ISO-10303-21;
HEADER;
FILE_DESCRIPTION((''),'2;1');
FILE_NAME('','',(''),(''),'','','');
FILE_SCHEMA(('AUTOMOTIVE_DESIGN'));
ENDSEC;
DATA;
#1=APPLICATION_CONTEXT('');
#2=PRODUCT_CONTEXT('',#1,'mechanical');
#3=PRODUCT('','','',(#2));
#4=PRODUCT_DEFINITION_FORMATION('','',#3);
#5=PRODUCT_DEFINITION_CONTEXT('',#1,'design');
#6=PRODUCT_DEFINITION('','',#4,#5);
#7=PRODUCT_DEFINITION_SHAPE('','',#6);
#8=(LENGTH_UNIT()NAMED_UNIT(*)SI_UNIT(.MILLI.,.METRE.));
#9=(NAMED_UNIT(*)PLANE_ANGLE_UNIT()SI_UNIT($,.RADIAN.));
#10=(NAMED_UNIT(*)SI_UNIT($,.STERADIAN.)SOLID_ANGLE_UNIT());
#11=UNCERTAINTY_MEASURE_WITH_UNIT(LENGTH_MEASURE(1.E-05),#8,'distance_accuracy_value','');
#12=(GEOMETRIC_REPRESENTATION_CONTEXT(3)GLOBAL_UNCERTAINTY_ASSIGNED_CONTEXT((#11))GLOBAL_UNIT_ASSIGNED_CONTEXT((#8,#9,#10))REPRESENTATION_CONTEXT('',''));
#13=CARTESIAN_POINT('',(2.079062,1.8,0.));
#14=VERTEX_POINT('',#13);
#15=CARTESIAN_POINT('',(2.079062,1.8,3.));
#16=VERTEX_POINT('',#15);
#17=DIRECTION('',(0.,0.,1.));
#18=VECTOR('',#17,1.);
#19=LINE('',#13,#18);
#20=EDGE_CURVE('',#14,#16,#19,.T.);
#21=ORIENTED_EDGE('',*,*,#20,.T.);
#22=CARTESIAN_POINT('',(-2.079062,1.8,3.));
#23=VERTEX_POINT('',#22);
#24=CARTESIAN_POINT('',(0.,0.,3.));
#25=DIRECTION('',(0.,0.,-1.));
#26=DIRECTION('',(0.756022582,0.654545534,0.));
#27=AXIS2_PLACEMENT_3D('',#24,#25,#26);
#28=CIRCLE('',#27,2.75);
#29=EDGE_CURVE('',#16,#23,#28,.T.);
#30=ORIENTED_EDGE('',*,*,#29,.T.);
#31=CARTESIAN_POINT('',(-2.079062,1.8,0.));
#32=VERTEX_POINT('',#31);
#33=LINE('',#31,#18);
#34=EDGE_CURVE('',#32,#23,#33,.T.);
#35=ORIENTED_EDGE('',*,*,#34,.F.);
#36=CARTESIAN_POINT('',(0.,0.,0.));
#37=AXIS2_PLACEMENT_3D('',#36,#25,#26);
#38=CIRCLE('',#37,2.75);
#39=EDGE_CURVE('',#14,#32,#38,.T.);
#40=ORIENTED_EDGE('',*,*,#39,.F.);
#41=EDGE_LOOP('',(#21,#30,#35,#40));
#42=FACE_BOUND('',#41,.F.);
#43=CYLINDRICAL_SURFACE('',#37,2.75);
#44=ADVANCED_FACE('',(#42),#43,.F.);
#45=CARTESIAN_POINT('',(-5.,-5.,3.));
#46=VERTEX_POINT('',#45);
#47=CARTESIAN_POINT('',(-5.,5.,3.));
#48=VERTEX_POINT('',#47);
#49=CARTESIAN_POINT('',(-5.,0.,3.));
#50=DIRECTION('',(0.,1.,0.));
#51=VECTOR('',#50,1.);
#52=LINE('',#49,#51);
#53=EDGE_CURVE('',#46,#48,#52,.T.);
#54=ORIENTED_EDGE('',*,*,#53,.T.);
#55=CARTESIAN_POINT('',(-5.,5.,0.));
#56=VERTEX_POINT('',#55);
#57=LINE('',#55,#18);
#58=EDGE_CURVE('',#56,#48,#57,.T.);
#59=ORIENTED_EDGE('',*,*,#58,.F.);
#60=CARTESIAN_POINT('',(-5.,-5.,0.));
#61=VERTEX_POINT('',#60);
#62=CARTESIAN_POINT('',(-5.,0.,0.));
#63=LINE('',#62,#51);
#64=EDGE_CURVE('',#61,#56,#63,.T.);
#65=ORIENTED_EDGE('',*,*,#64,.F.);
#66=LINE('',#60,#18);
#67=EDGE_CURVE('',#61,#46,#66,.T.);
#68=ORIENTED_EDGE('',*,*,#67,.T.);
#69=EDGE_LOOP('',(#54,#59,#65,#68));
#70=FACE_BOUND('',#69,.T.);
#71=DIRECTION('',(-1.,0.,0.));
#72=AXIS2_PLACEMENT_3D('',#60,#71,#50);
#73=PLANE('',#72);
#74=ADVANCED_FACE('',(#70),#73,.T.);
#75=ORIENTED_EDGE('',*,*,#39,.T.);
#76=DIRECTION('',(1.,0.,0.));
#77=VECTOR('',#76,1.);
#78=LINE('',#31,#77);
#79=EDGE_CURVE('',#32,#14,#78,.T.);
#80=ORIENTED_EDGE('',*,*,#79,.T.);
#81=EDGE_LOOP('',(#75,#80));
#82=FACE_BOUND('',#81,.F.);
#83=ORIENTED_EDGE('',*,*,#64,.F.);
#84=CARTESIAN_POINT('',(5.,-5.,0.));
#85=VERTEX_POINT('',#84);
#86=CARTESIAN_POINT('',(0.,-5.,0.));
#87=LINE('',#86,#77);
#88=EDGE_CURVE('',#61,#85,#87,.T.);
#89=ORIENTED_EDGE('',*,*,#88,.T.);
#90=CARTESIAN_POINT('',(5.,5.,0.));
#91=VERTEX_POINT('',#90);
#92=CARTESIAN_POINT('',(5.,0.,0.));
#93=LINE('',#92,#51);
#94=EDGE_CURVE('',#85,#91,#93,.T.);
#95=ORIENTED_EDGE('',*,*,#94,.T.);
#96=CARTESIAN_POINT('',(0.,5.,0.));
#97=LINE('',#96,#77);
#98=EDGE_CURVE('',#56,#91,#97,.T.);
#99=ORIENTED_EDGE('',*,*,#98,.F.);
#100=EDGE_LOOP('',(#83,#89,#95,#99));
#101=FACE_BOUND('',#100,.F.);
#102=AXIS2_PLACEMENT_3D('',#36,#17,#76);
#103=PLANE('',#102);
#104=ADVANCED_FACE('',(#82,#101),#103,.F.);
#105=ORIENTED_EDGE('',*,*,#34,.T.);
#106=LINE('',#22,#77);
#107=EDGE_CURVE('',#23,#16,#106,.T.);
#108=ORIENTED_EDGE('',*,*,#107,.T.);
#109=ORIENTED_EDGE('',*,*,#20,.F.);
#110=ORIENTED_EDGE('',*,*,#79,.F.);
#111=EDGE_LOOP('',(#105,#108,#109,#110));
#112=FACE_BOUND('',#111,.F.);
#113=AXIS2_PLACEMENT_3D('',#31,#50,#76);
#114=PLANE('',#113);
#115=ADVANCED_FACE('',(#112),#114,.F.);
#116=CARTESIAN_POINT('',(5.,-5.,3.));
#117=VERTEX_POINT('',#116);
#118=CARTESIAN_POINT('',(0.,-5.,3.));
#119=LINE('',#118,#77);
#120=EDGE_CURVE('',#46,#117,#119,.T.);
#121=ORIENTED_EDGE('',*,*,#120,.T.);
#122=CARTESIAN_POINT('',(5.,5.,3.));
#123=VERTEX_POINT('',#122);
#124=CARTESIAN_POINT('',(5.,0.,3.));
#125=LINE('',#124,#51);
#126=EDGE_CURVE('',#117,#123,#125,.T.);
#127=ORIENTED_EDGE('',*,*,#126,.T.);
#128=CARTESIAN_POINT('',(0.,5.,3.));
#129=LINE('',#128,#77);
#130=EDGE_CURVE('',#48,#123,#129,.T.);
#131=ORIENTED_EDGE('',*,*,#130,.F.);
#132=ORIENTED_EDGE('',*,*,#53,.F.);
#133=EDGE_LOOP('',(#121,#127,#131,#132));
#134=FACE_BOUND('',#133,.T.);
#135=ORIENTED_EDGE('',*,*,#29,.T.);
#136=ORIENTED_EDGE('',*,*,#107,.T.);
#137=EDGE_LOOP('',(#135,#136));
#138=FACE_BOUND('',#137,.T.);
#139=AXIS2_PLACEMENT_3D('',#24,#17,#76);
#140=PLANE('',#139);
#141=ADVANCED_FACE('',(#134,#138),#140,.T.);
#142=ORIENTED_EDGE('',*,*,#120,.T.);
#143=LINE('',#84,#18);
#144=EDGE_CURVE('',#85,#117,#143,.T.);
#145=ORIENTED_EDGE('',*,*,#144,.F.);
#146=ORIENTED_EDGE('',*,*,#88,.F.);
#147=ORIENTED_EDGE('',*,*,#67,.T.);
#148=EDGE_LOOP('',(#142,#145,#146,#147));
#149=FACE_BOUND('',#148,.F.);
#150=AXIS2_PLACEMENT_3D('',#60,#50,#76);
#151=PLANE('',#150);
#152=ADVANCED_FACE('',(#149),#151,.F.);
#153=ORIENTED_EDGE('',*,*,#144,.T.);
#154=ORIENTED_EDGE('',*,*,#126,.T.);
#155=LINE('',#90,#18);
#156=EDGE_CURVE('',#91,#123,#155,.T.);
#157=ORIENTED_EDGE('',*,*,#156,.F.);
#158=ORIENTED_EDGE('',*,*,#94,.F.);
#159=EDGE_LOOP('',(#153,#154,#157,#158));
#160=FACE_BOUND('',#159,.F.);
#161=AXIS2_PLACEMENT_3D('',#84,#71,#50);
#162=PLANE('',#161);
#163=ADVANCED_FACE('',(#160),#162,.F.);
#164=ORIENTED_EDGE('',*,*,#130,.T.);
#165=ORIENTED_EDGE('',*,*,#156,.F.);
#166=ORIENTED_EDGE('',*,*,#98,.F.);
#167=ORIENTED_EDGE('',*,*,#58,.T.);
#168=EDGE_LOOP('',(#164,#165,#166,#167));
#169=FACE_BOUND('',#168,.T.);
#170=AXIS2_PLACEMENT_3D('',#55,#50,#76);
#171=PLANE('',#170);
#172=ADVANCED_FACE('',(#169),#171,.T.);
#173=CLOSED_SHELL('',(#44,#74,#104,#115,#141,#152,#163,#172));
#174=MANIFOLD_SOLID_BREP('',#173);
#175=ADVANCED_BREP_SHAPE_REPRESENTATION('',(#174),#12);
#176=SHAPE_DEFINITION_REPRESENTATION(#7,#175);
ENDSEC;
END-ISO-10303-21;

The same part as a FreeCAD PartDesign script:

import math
import FreeCAD as App
import Part
import Sketcher


def add_polygon(sketch, points):
    """Adds a closed chain of lines whose ends are joined by coincident constraints."""
    first, n = sketch.GeometryCount, len(points)
    for a, b in zip(points, points[1:] + points[:1]):
        sketch.addGeometry(Part.LineSegment(App.Vector(*a, 0), App.Vector(*b, 0)), False)
    for i in range(n):
        sketch.addConstraint(Sketcher.Constraint("Coincident", first + i, 2, first + (i + 1) % n, 1))

doc = App.newDocument("Part")
body = doc.addObject("PartDesign::Body", "Body")

sketch1 = body.newObject("Sketcher::SketchObject", "Sketch")
sketch1.AttachmentSupport = (doc.getObject("XY_Plane"), [""])
sketch1.MapMode = "FlatFace"
add_polygon(sketch1, [(-5, 5), (-5, -5), (5, -5), (5, 5)])
sketch1.addGeometry(Part.LineSegment(App.Vector(-2.1, 1.8, 0), App.Vector(2.1, 1.8, 0)), False)
sketch1.addGeometry(Part.ArcOfCircle(Part.Circle(App.Vector(0, 0, 0), App.Vector(0, 0, 1), 2.7), math.radians(139), math.radians(401)), False)
sketch1.addConstraint([
    Sketcher.Constraint("Coincident", 4, 1, 5, 1),
    Sketcher.Constraint("Coincident", 5, 2, 4, 2),
    Sketcher.Constraint("Vertical", 0),
    Sketcher.Constraint("Horizontal", 1),
    Sketcher.Constraint("Vertical", 2),
    Sketcher.Constraint("Horizontal", 3),
    Sketcher.Constraint("Horizontal", 4),
    Sketcher.Constraint("Coincident", 5, 3, -1, 1),
    Sketcher.Constraint("Symmetric", 0, 2, 2, 2, -1, 1),
    Sketcher.Constraint("Equal", 3, 0),
    Sketcher.Constraint("DistanceX", 1, 1, 1, 2, 10.0),
    Sketcher.Constraint("Radius", 5, 2.75),
    Sketcher.Constraint("DistanceY", -1, 1, 4, 1, 1.8),
])
pad1 = body.newObject("PartDesign::Pad", "Pad")
pad1.Profile = sketch1
pad1.Length = 3

doc.recompute()
